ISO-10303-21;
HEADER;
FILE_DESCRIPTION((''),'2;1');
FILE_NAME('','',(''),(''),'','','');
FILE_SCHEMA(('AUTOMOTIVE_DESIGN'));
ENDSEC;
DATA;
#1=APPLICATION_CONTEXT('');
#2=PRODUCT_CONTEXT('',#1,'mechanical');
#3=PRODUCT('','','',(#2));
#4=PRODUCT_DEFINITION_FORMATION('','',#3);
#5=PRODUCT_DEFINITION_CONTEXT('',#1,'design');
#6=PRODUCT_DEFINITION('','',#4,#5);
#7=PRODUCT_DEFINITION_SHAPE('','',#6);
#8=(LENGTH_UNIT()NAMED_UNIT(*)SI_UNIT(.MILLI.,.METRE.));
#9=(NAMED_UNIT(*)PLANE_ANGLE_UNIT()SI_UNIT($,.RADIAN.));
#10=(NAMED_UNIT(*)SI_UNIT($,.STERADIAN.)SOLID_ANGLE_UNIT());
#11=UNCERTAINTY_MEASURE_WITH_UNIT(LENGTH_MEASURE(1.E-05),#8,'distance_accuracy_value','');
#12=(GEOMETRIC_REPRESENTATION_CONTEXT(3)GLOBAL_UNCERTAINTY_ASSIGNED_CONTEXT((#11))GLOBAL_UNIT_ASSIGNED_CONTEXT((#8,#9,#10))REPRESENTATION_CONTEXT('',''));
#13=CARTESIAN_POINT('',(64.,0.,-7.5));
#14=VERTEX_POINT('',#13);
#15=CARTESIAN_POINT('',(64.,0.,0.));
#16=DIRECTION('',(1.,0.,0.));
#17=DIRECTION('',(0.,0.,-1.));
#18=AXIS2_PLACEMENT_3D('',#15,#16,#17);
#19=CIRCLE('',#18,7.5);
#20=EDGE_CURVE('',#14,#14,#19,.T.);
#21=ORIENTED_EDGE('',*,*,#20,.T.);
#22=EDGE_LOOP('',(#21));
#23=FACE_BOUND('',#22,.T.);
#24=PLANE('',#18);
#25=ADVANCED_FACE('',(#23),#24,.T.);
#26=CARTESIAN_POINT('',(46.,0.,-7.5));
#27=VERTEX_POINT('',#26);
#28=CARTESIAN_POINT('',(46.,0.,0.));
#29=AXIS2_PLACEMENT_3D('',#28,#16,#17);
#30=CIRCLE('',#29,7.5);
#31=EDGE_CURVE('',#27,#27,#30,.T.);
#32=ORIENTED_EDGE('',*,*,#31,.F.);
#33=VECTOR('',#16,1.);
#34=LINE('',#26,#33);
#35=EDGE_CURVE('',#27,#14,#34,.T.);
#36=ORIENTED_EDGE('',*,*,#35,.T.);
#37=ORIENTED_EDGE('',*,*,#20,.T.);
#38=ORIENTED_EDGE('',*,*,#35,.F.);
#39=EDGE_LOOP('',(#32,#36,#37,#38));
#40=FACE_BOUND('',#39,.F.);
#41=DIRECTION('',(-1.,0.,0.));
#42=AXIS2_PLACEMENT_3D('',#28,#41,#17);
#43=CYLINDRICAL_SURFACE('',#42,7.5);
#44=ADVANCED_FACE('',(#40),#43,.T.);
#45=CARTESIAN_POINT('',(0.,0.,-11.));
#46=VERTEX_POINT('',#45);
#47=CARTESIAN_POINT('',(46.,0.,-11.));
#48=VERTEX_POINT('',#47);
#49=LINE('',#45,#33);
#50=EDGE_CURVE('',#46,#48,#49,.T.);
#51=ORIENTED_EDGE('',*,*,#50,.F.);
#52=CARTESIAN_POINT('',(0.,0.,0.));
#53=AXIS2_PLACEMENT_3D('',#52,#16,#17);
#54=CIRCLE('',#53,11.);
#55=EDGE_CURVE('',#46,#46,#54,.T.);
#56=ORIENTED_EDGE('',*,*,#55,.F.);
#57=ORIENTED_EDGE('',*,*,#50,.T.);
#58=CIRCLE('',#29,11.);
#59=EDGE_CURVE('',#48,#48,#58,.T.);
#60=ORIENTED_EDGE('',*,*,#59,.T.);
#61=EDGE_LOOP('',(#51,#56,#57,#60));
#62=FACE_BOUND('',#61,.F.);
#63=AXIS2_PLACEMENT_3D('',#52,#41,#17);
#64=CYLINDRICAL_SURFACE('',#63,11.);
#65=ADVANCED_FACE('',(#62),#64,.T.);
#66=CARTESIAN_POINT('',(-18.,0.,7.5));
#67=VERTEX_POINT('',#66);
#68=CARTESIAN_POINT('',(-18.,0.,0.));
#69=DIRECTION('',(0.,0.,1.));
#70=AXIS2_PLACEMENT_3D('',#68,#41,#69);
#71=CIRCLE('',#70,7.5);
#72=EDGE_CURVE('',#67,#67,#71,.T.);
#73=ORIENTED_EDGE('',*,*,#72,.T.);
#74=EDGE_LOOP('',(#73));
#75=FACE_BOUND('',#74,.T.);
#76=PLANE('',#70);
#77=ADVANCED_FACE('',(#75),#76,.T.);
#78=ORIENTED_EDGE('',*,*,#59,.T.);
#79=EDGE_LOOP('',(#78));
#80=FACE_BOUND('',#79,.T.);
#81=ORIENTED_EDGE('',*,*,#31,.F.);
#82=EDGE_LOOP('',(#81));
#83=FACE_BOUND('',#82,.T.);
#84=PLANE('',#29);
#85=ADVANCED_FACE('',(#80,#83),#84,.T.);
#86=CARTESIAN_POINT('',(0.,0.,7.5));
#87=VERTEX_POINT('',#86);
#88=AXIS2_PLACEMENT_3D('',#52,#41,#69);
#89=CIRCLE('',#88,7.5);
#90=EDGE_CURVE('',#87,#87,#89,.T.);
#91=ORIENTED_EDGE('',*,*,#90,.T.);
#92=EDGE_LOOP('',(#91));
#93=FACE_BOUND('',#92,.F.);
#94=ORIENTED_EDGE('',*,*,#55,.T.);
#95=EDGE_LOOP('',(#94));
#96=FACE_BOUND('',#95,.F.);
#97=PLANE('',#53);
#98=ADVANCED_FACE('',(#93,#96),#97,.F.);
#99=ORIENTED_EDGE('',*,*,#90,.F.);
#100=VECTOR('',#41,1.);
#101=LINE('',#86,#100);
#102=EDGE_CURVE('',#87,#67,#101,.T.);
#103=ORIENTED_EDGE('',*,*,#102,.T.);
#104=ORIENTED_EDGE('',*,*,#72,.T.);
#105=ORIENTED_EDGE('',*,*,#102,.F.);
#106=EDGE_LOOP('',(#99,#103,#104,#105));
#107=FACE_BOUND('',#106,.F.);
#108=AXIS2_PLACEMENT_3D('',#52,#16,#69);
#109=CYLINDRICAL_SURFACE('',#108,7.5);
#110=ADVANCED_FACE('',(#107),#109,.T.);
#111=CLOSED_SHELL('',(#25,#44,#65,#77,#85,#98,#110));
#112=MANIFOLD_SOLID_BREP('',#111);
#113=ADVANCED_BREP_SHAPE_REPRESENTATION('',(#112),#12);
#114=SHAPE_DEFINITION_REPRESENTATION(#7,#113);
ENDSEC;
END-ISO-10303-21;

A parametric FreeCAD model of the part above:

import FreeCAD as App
import Part
import Sketcher
from FreeCAD import Vector

doc = App.newDocument("Part")
params = doc.addObject("Spreadsheet::Sheet", "Params")
for row, (alias, value) in enumerate([
    ("sketch1_diameter", "22 mm"),
    ("pad1_length", "46 mm"),
    ("sketch2_diameter", "15 mm"),
    ("pad2_length", "18 mm"),
    ("sketch3_diameter", "15 mm"),
    ("pad3_length", "18 mm"),
], start=1):
    params.set(f"A{row}", alias)
    params.set(f"B{row}", "=" + value)
    params.setAlias(f"B{row}", alias)

body = doc.addObject("PartDesign::Body", "Body")

sketch1 = body.newObject("Sketcher::SketchObject", "Sketch")
sketch1.AttachmentSupport = (doc.getObject("YZ_Plane"), [""])
sketch1.MapMode = "FlatFace"
sketch1.addGeometry(Part.Circle(Vector(0, 0, 0), Vector(0, 0, 1), 11), False)
sketch1.addConstraint([
    Sketcher.Constraint("Coincident", 0, 3, -1, 1),
    Sketcher.Constraint("Diameter", 0, 22.0),
])
sketch1.setExpression("Constraints[1]", "Params.sketch1_diameter")
pad1 = body.newObject("PartDesign::Pad", "Pad")
pad1.Profile = sketch1
pad1.setExpression("Length", "Params.pad1_length")

sketch2 = body.newObject("Sketcher::SketchObject", "Sketch001")
sketch2.AttachmentSupport = (doc.getObject("YZ_Plane"), [""])
sketch2.MapMode = "FlatFace"
sketch2.AttachmentOffset = App.Placement(Vector(0, 0, 46), App.Rotation())
sketch2.addGeometry(Part.Circle(Vector(0, 0, 0), Vector(0, 0, 1), 7.5), False)
sketch2.addConstraint([
    Sketcher.Constraint("Coincident", 0, 3, -1, 1),
    Sketcher.Constraint("Diameter", 0, 15.0),
])
sketch2.setExpression("Constraints[1]", "Params.sketch2_diameter")
pad2 = body.newObject("PartDesign::Pad", "Pad001")
pad2.Profile = sketch2
pad2.setExpression("Length", "Params.pad2_length")

sketch3 = body.newObject("Sketcher::SketchObject", "Sketch002")
sketch3.AttachmentSupport = (doc.getObject("YZ_Plane"), [""])
sketch3.MapMode = "FlatFace"
sketch3.addGeometry(Part.Circle(Vector(0, 0, 0), Vector(0, 0, 1), 7.5), False)
sketch3.addConstraint([
    Sketcher.Constraint("Coincident", 0, 3, -1, 1),
    Sketcher.Constraint("Diameter", 0, 15.0),
])
sketch3.setExpression("Constraints[1]", "Params.sketch3_diameter")
pad3 = body.newObject("PartDesign::Pad", "Pad002")
pad3.Profile = sketch3
pad3.setExpression("Length", "Params.pad3_length")
pad3.Reversed = True

doc.recompute()
